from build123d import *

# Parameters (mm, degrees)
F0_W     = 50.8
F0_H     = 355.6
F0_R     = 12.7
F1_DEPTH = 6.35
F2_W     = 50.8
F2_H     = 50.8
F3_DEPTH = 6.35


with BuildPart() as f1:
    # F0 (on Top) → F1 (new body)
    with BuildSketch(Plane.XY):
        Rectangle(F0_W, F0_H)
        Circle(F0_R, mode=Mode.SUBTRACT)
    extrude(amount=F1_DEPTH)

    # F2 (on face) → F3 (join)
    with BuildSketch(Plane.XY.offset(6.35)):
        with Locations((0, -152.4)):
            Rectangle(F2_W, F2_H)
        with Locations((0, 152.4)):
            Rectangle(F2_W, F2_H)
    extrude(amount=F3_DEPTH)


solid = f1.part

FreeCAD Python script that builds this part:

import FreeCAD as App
import Part
import Sketcher

V = App.Vector
Q = App.Units.Quantity


def add_polygon(sketch, points):
    """Adds a closed chain of lines whose ends are joined by coincident constraints."""
    first, n = sketch.GeometryCount, len(points)
    for a, b in zip(points, points[1:] + points[:1]):
        sketch.addGeometry(Part.LineSegment(App.Vector(*a, 0), App.Vector(*b, 0)), False)
    for i in range(n):
        sketch.addConstraint(Sketcher.Constraint("Coincident", first + i, 2, first + (i + 1) % n, 1))

doc = App.newDocument("Part")
body = doc.addObject("PartDesign::Body", "Body")

sketch1 = doc.addObject("Sketcher::SketchObject", "Sketch")
body.addObject(sketch1)
sketch1.AttachmentSupport = (doc.XY_Plane, [""])
sketch1.MapMode = "FlatFace"
add_polygon(sketch1, [(-25, 178), (-25, -178), (25, -178), (25, 178)])
sketch1.addGeometry(Part.Circle(V(0, 0, 0), V(0, 0, 1), 13), False)
sketch1.addConstraint([
    Sketcher.Constraint("Vertical", 0),
    Sketcher.Constraint("Horizontal", 1),
    Sketcher.Constraint("Vertical", 2),
    Sketcher.Constraint("Horizontal", 3),
    Sketcher.Constraint("Coincident", 4, 3, -1, 1),
    Sketcher.Constraint("Symmetric", 0, 2, 2, 2, -1, 1),
    Sketcher.Constraint("Diameter", 4, Q("1 in")),
    Sketcher.Constraint("DistanceX", 1, 1, 1, 2, Q("2 in")),
    Sketcher.Constraint("DistanceY", 0, 2, 0, 1, Q("14 in")),
])
pad1 = doc.addObject("PartDesign::Pad", "Pad")
body.addObject(pad1)
pad1.Profile = sketch1
pad1.Length = Q("0.25 in")

sketch2 = doc.addObject("Sketcher::SketchObject", "Sketch001")
body.addObject(sketch2)
sketch2.AttachmentSupport = (doc.XY_Plane, [""])
sketch2.MapMode = "FlatFace"
sketch2.AttachmentOffset = App.Placement(V(0, 0, 0.25 * 25.4), App.Rotation())
add_polygon(sketch2, [(-25, -127), (-25, -178), (25, -178), (25, -127)])
add_polygon(sketch2, [(-25, 178), (-25, 127), (25, 127), (25, 178)])
sketch2.addConstraint([
    Sketcher.Constraint("Vertical", 0),
    Sketcher.Constraint("Horizontal", 1),
    Sketcher.Constraint("Vertical", 2),
    Sketcher.Constraint("Horizontal", 3),
    Sketcher.Constraint("Vertical", 4),
    Sketcher.Constraint("Horizontal", 5),
    Sketcher.Constraint("Vertical", 6),
    Sketcher.Constraint("Horizontal", 7),
    Sketcher.Constraint("Symmetric", 2, 2, 4, 2, -1, 1),
    Sketcher.Constraint("Symmetric", 0, 2, 6, 2, -1, 1),
    Sketcher.Constraint("Vertical", 3, 2, 4, 2),
    Sketcher.Constraint("Equal", 7, 0),
    Sketcher.Constraint("DistanceX", 1, 1, 1, 2, Q("2 in")),
    Sketcher.Constraint("DistanceY", 0, 2, -1, 1, Q("7 in")),
])
pad2 = doc.addObject("PartDesign::Pad", "Pad001")
body.addObject(pad2)
pad2.Profile = sketch2
pad2.Length = Q("0.25 in")

doc.recompute()
